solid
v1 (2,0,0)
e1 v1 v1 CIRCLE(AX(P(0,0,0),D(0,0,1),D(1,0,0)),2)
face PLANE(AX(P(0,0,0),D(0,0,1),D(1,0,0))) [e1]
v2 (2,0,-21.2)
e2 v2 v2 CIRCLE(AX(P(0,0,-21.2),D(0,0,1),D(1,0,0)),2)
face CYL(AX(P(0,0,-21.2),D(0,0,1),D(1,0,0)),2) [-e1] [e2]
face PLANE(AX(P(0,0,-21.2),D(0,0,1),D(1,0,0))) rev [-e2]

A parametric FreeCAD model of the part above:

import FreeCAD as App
import Part
import Sketcher
Q = App.Units.Quantity

doc = App.newDocument("Part")
body = doc.addObject("PartDesign::Body", "Body")

sketch1 = body.newObject("Sketcher::SketchObject", "Sketch")
sketch1.AttachmentSupport = (doc.getObject("XY_Plane"), [""])
sketch1.MapMode = "FlatFace"
sketch1.addGeometry(Part.Circle(App.Vector(0, 0, 0), App.Vector(0, 0, 1), 2), False)
sketch1.addConstraint([
    Sketcher.Constraint("Coincident", 0, 3, -1, 1),
    Sketcher.Constraint("Diameter", 0, Q("4 mm")),
])
pad1 = body.newObject("PartDesign::Pad", "Pad")
pad1.Profile = sketch1
pad1.Length = 21.2
pad1.Reversed = True

doc.recompute()
